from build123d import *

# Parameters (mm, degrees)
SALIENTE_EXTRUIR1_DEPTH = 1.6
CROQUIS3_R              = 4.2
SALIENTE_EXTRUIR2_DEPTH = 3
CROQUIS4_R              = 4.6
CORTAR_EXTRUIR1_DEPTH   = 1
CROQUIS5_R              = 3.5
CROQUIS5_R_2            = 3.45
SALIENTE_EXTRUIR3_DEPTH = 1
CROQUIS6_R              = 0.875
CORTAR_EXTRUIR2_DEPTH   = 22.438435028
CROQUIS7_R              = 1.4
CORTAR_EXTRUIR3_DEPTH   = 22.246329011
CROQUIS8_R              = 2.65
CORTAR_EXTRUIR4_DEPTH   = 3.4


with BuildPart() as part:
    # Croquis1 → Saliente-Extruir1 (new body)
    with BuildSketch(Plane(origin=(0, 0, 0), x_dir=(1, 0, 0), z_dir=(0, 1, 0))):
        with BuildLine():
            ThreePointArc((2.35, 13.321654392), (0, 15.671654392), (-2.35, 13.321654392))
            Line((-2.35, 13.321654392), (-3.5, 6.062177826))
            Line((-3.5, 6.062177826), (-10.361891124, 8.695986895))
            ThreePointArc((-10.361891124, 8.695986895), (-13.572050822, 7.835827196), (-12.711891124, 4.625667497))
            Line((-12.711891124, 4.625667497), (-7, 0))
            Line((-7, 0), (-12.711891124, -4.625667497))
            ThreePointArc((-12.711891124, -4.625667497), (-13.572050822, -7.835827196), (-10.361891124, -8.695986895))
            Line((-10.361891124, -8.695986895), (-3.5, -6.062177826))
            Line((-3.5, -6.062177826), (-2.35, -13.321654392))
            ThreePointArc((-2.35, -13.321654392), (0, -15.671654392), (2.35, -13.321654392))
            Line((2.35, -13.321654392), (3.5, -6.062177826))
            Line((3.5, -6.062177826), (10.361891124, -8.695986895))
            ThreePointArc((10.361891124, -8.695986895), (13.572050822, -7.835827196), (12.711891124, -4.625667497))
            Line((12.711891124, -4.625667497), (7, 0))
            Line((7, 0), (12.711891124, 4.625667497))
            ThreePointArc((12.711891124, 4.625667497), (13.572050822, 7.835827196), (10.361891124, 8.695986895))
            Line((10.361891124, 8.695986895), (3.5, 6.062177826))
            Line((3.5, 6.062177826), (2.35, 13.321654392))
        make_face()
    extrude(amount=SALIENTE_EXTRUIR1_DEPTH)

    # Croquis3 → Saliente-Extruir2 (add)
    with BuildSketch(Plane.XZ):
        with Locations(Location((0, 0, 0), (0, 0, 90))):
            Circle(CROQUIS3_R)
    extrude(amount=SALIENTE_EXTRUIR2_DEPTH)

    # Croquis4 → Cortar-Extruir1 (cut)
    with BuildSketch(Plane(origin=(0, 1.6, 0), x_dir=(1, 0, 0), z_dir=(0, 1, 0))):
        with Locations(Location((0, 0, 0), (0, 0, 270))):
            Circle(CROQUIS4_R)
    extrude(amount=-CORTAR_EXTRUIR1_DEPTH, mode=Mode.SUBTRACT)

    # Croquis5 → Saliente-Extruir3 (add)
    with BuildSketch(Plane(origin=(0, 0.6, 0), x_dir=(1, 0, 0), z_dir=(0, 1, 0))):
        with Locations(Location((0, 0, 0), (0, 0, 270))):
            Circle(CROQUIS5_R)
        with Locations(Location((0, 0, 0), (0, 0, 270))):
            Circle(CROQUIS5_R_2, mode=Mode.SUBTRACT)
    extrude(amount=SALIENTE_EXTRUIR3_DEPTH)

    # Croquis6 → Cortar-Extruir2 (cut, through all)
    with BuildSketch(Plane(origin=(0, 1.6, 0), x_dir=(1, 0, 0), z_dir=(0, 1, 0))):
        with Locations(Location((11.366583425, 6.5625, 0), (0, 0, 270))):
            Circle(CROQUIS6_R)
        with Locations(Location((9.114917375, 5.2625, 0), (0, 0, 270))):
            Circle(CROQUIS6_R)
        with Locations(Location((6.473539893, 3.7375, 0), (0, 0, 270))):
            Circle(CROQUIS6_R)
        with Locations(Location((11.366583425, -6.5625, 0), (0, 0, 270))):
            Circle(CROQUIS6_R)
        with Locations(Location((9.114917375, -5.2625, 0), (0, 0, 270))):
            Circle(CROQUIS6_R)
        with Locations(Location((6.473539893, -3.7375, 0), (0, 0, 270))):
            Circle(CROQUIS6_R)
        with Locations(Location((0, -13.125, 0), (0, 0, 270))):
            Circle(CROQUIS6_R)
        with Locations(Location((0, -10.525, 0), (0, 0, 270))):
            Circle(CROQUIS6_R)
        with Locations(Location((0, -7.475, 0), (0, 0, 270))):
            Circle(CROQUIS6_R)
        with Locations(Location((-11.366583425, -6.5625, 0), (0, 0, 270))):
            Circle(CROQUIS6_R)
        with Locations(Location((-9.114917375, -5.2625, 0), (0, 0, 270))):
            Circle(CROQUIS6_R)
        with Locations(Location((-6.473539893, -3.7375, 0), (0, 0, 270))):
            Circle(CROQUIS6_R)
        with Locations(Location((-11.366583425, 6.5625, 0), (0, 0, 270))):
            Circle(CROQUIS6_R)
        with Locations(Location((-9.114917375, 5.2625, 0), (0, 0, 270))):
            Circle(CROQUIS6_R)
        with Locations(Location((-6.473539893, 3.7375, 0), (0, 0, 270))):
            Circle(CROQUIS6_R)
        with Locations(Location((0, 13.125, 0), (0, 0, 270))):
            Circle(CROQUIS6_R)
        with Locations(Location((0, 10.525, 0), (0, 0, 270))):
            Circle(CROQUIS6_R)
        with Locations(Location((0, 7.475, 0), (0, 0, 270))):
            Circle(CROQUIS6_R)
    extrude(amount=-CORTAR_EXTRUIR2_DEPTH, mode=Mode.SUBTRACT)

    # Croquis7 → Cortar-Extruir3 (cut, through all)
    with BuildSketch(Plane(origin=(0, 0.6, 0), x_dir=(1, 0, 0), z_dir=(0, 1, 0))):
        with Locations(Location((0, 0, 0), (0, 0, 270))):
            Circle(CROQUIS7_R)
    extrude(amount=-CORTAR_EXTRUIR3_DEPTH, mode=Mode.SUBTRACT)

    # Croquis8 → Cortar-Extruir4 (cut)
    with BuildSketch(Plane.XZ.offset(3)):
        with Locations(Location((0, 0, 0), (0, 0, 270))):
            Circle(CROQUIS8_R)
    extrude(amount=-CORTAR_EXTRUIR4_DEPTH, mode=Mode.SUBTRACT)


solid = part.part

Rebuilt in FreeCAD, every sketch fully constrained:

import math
import FreeCAD as App
import Part
import Sketcher

V = App.Vector

doc = App.newDocument("Part")
params = doc.addObject("Spreadsheet::Sheet", "Params")
for row, (alias, value) in enumerate([
    ("sketch1_radius", "2.35 mm"),
    ("sketch1_length", "7.35 mm"),
    ("pad1_length", "1.6 mm"),
    ("sketch2_diameter", "8.4 mm"),
    ("pad2_length", "3 mm"),
    ("sketch3_diameter", "9.2 mm"),
    ("pocket1_length", "1 mm"),
    ("sketch4_diameter", "7 mm"),
    ("sketch4_diameter2", "6.9 mm"),
    ("pad3_length", "1 mm"),
    ("sketch5_diameter", "1.75 mm"),
    ("sketch6_diameter", "2.8 mm"),
    ("sketch7_diameter", "5.3 mm"),
    ("pocket4_length", "3.4 mm"),
], start=1):
    params.set(f"A{row}", alias)
    params.set(f"B{row}", "=" + value)
    params.setAlias(f"B{row}", alias)

body = doc.addObject("PartDesign::Body", "Body")

sketch1 = body.newObject("Sketcher::SketchObject", "Sketch")
sketch1.AttachmentSupport = (doc.getObject("XZ_Plane"), [""])
sketch1.MapMode = "FlatFace"
sketch1.addGeometry([
    Part.ArcOfCircle(Part.Circle(V(0, -13.321654, 0), V(0, 0, 1), 2.35), math.radians(180), math.radians(360)),
    Part.LineSegment(V(-2.35, -13.321654, 0), V(-3.5, -6.062178, 0)),
    Part.LineSegment(V(-3.5, -6.062178, 0), V(-10.361891, -8.695987, 0)),
    Part.ArcOfCircle(Part.Circle(V(-11.536891, -6.660827, 0), V(0, 0, 1), 2.35), math.radians(120), math.radians(300)),
    Part.LineSegment(V(-12.711891, -4.625667, 0), V(-7, 0, 0)),
    Part.LineSegment(V(-7, 0, 0), V(-12.711891, 4.625667, 0)),
    Part.ArcOfCircle(Part.Circle(V(-11.536891, 6.660827, 0), V(0, 0, 1), 2.35), math.radians(60), math.radians(240)),
    Part.LineSegment(V(-10.361891, 8.695987, 0), V(-3.5, 6.062178, 0)),
    Part.LineSegment(V(-3.5, 6.062178, 0), V(-2.35, 13.321654, 0)),
    Part.ArcOfCircle(Part.Circle(V(0, 13.321654, 0), V(0, 0, 1), 2.35), math.radians(0), math.radians(180)),
    Part.LineSegment(V(2.35, 13.321654, 0), V(3.5, 6.062178, 0)),
    Part.LineSegment(V(3.5, 6.062178, 0), V(10.361891, 8.695987, 0)),
    Part.ArcOfCircle(Part.Circle(V(11.536891, 6.660827, 0), V(0, 0, 1), 2.35), math.radians(-60), math.radians(120)),
    Part.LineSegment(V(12.711891, 4.625667, 0), V(7, 0, 0)),
    Part.LineSegment(V(7, 0, 0), V(12.711891, -4.625667, 0)),
    Part.ArcOfCircle(Part.Circle(V(11.536891, -6.660827, 0), V(0, 0, 1), 2.35), math.radians(-120), math.radians(60)),
    Part.LineSegment(V(10.361891, -8.695987, 0), V(3.5, -6.062178, 0)),
    Part.LineSegment(V(3.5, -6.062178, 0), V(2.35, -13.321654, 0)),
], False)
sketch1.addConstraint([
    Sketcher.Constraint("Coincident", 0, 1, 1, 1),
    Sketcher.Constraint("Coincident", 1, 2, 2, 1),
    Sketcher.Constraint("Coincident", 2, 2, 3, 2),
    Sketcher.Constraint("Coincident", 3, 1, 4, 1),
    Sketcher.Constraint("Coincident", 4, 2, 5, 1),
    Sketcher.Constraint("Coincident", 5, 2, 6, 2),
    Sketcher.Constraint("Coincident", 6, 1, 7, 1),
    Sketcher.Constraint("Coincident", 7, 2, 8, 1),
    Sketcher.Constraint("Coincident", 8, 2, 9, 2),
    Sketcher.Constraint("Coincident", 9, 1, 10, 1),
    Sketcher.Constraint("Coincident", 10, 2, 11, 1),
    Sketcher.Constraint("Coincident", 11, 2, 12, 2),
    Sketcher.Constraint("Coincident", 12, 1, 13, 1),
    Sketcher.Constraint("Coincident", 13, 2, 14, 1),
    Sketcher.Constraint("Coincident", 14, 2, 15, 2),
    Sketcher.Constraint("Coincident", 15, 1, 16, 1),
    Sketcher.Constraint("Coincident", 16, 2, 17, 1),
    Sketcher.Constraint("Coincident", 17, 2, 0, 2),
    Sketcher.Constraint("Equal", 0, 3),
    Sketcher.Constraint("Equal", 3, 6),
    Sketcher.Constraint("Equal", 6, 9),
    Sketcher.Constraint("Equal", 9, 12),
    Sketcher.Constraint("Equal", 12, 15),
    Sketcher.Constraint("Symmetric", 0, 3, 9, 3, -1, 1),
    Sketcher.Constraint("Symmetric", 3, 3, 12, 3, -1, 1),
    Sketcher.Constraint("Symmetric", 6, 3, 15, 3, -1, 1),
    Sketcher.Constraint("Symmetric", 1, 2, 10, 2, -1, 1),
    Sketcher.Constraint("Symmetric", 4, 2, 13, 2, -1, 1),
    Sketcher.Constraint("Symmetric", 7, 2, 16, 2, -1, 1),
    Sketcher.Constraint("Symmetric", 6, 3, 12, 3, -2),
    Sketcher.Constraint("Symmetric", 8, 2, 9, 1, -2),
    Sketcher.Constraint("Symmetric", 7, 2, 10, 2, -2),
    Sketcher.Constraint("PointOnObject", 4, 2, -1),
    Sketcher.Constraint("Parallel", 1, 10),
    Sketcher.Constraint("Parallel", 2, 11),
    Sketcher.Constraint("Parallel", 4, 13),
    Sketcher.Constraint("Parallel", 5, 14),
    Sketcher.Constraint("Parallel", 7, 16),
    Sketcher.Constraint("Parallel", 8, 17),
    Sketcher.Constraint("Horizontal", 9, 3, 8, 2),
    Sketcher.Constraint("Horizontal", 6, 1, 11, 2),
    Sketcher.Constraint("Horizontal", 5, 2, 12, 1),
    Sketcher.Constraint("Equal", 1, 2),
    Sketcher.Constraint("Equal", 2, 4),
    Sketcher.Constraint("Radius", 0, 2.35),
    Sketcher.Constraint("DistanceX", 4, 2, -1, 1, 7.0),
    Sketcher.Constraint("DistanceX", 7, 2, 10, 2, 7.0),
    Sketcher.Constraint("Distance", 1, 7.35),
    Sketcher.Constraint("DistanceX", 3, 1, 2, 2, 2.35),
    Sketcher.Constraint("DistanceX", 3, 3, 2, 2, 1.175),
    Sketcher.Constraint("DistanceX", 3, 3, -1, 1, 11.536891),
])
sketch1.setExpression("Constraints[44]", "Params.sketch1_radius")
sketch1.setExpression("Constraints[47]", "Params.sketch1_length")
pad1 = body.newObject("PartDesign::Pad", "Pad")
pad1.Profile = sketch1
pad1.setExpression("Length", "Params.pad1_length")
pad1.Reversed = True

sketch2 = body.newObject("Sketcher::SketchObject", "Sketch001")
sketch2.AttachmentSupport = (doc.getObject("XZ_Plane"), [""])
sketch2.MapMode = "FlatFace"
sketch2.addGeometry(Part.Circle(V(0, 0, 0), V(0, 0, 1), 4.2), False)
sketch2.addConstraint([
    Sketcher.Constraint("Coincident", 0, 3, -1, 1),
    Sketcher.Constraint("Diameter", 0, 8.4),
])
sketch2.setExpression("Constraints[1]", "Params.sketch2_diameter")
pad2 = body.newObject("PartDesign::Pad", "Pad001")
pad2.Profile = sketch2
pad2.setExpression("Length", "Params.pad2_length")

sketch3 = body.newObject("Sketcher::SketchObject", "Sketch002")
sketch3.AttachmentSupport = (doc.getObject("XZ_Plane"), [""])
sketch3.MapMode = "FlatFace"
sketch3.AttachmentOffset = App.Placement(V(0, 0, -1.6), App.Rotation())
sketch3.addGeometry(Part.Circle(V(0, 0, 0), V(0, 0, 1), 4.6), False)
sketch3.addConstraint([
    Sketcher.Constraint("Coincident", 0, 3, -1, 1),
    Sketcher.Constraint("Diameter", 0, 9.2),
])
sketch3.setExpression("Constraints[1]", "Params.sketch3_diameter")
pocket1 = body.newObject("PartDesign::Pocket", "Pocket")
pocket1.Profile = sketch3
pocket1.setExpression("Length", "Params.pocket1_length")
pocket1.Reversed = True

sketch4 = body.newObject("Sketcher::SketchObject", "Sketch003")
sketch4.AttachmentSupport = (doc.getObject("XZ_Plane"), [""])
sketch4.MapMode = "FlatFace"
sketch4.AttachmentOffset = App.Placement(V(0, 0, -0.6), App.Rotation())
sketch4.addGeometry([
    Part.Circle(V(0, 0, 0), V(0, 0, 1), 3.5),
    Part.Circle(V(0, 0, 0), V(0, 0, 1), 3.45),
], False)
sketch4.addConstraint([
    Sketcher.Constraint("Coincident", 0, 3, -1, 1),
    Sketcher.Constraint("Coincident", 1, 3, -1, 1),
    Sketcher.Constraint("Diameter", 0, 7.0),
    Sketcher.Constraint("Diameter", 1, 6.9),
])
sketch4.setExpression("Constraints[2]", "Params.sketch4_diameter")
sketch4.setExpression("Constraints[3]", "Params.sketch4_diameter2")
pad3 = body.newObject("PartDesign::Pad", "Pad002")
pad3.Profile = sketch4
pad3.setExpression("Length", "Params.pad3_length")
pad3.Reversed = True

sketch5 = body.newObject("Sketcher::SketchObject", "Sketch004")
sketch5.AttachmentSupport = (doc.getObject("XZ_Plane"), [""])
sketch5.MapMode = "FlatFace"
sketch5.AttachmentOffset = App.Placement(V(0, 0, -1.6), App.Rotation())
sketch5.addGeometry([
    Part.Circle(V(11.366583, -6.5625, 0), V(0, 0, 1), 0.875),
    Part.Circle(V(9.114917, -5.2625, 0), V(0, 0, 1), 0.875),
    Part.Circle(V(6.47354, -3.7375, 0), V(0, 0, 1), 0.875),
    Part.Circle(V(11.366583, 6.5625, 0), V(0, 0, 1), 0.875),
    Part.Circle(V(9.114917, 5.2625, 0), V(0, 0, 1), 0.875),
    Part.Circle(V(6.47354, 3.7375, 0), V(0, 0, 1), 0.875),
    Part.Circle(V(0, 13.125, 0), V(0, 0, 1), 0.875),
    Part.Circle(V(0, 10.525, 0), V(0, 0, 1), 0.875),
    Part.Circle(V(0, 7.475, 0), V(0, 0, 1), 0.875),
    Part.Circle(V(-11.366583, 6.5625, 0), V(0, 0, 1), 0.875),
    Part.Circle(V(-9.114917, 5.2625, 0), V(0, 0, 1), 0.875),
    Part.Circle(V(-6.47354, 3.7375, 0), V(0, 0, 1), 0.875),
    Part.Circle(V(-11.366583, -6.5625, 0), V(0, 0, 1), 0.875),
    Part.Circle(V(-9.114917, -5.2625, 0), V(0, 0, 1), 0.875),
    Part.Circle(V(-6.47354, -3.7375, 0), V(0, 0, 1), 0.875),
    Part.Circle(V(0, -13.125, 0), V(0, 0, 1), 0.875),
    Part.Circle(V(0, -10.525, 0), V(0, 0, 1), 0.875),
    Part.Circle(V(0, -7.475, 0), V(0, 0, 1), 0.875),
], False)
sketch5.addConstraint([
    Sketcher.Constraint("Equal", 0, 1),
    Sketcher.Constraint("Equal", 1, 2),
    Sketcher.Constraint("Equal", 2, 3),
    Sketcher.Constraint("Equal", 3, 4),
    Sketcher.Constraint("Equal", 4, 5),
    Sketcher.Constraint("Equal", 5, 6),
    Sketcher.Constraint("Equal", 6, 7),
    Sketcher.Constraint("Equal", 7, 8),
    Sketcher.Constraint("Equal", 8, 9),
    Sketcher.Constraint("Equal", 9, 10),
    Sketcher.Constraint("Equal", 10, 11),
    Sketcher.Constraint("Equal", 11, 12),
    Sketcher.Constraint("Equal", 12, 13),
    Sketcher.Constraint("Equal", 13, 14),
    Sketcher.Constraint("Equal", 14, 15),
    Sketcher.Constraint("Equal", 15, 16),
    Sketcher.Constraint("Equal", 16, 17),
    Sketcher.Constraint("Symmetric", 0, 3, 9, 3, -1, 1),
    Sketcher.Constraint("Symmetric", 1, 3, 10, 3, -1, 1),
    Sketcher.Constraint("Symmetric", 2, 3, 11, 3, -1, 1),
    Sketcher.Constraint("Symmetric", 3, 3, 12, 3, -1, 1),
    Sketcher.Constraint("Symmetric", 4, 3, 13, 3, -1, 1),
    Sketcher.Constraint("Symmetric", 5, 3, 14, 3, -1, 1),
    Sketcher.Constraint("Symmetric", 6, 3, 15, 3, -1, 1),
    Sketcher.Constraint("Symmetric", 7, 3, 16, 3, -1, 1),
    Sketcher.Constraint("Symmetric", 8, 3, 17, 3, -1, 1),
    Sketcher.Constraint("Symmetric", 3, 3, 9, 3, -2),
    Sketcher.Constraint("Symmetric", 4, 3, 10, 3, -2),
    Sketcher.Constraint("Symmetric", 5, 3, 11, 3, -2),
    Sketcher.Constraint("PointOnObject", 6, 3, -2),
    Sketcher.Constraint("PointOnObject", 7, 3, -2),
    Sketcher.Constraint("PointOnObject", 8, 3, -2),
    Sketcher.Constraint("Diameter", 0, 1.75),
    Sketcher.Constraint("DistanceY", 2, 3, 4, 3, 9.0),
    Sketcher.Constraint("DistanceY", 0, 3, 1, 3, 1.3),
    Sketcher.Constraint("DistanceY", 7, 3, 6, 3, 2.6),
    Sketcher.Constraint("DistanceY", 8, 3, 7, 3, 3.05),
    Sketcher.Constraint("DistanceY", -1, 1, 6, 3, 13.125),
    Sketcher.Constraint("DistanceY", 1, 3, 2, 3, 1.525),
    Sketcher.Constraint("DistanceX", 9, 3, 4, 3, 20.481501),
    Sketcher.Constraint("DistanceX", -1, 1, 2, 3, 6.47354),
    Sketcher.Constraint("DistanceX", -1, 1, 0, 3, 11.366583),
])
sketch5.setExpression("Constraints[32]", "Params.sketch5_diameter")
pocket2 = body.newObject("PartDesign::Pocket", "Pocket001")
pocket2.Profile = sketch5
pocket2.Type = "ThroughAll"
pocket2.Reversed = True

sketch6 = body.newObject("Sketcher::SketchObject", "Sketch005")
sketch6.AttachmentSupport = (doc.getObject("XZ_Plane"), [""])
sketch6.MapMode = "FlatFace"
sketch6.AttachmentOffset = App.Placement(V(0, 0, -0.6), App.Rotation())
sketch6.addGeometry(Part.Circle(V(0, 0, 0), V(0, 0, 1), 1.4), False)
sketch6.addConstraint([
    Sketcher.Constraint("Coincident", 0, 3, -1, 1),
    Sketcher.Constraint("Diameter", 0, 2.8),
])
sketch6.setExpression("Constraints[1]", "Params.sketch6_diameter")
pocket3 = body.newObject("PartDesign::Pocket", "Pocket002")
pocket3.Profile = sketch6
pocket3.Type = "ThroughAll"
pocket3.Reversed = True

sketch7 = body.newObject("Sketcher::SketchObject", "Sketch006")
sketch7.AttachmentSupport = (doc.getObject("XZ_Plane"), [""])
sketch7.MapMode = "FlatFace"
sketch7.AttachmentOffset = App.Placement(V(0, 0, 3), App.Rotation())
sketch7.addGeometry(Part.Circle(V(0, 0, 0), V(0, 0, 1), 2.65), False)
sketch7.addConstraint([
    Sketcher.Constraint("Coincident", 0, 3, -1, 1),
    Sketcher.Constraint("Diameter", 0, 5.3),
])
sketch7.setExpression("Constraints[1]", "Params.sketch7_diameter")
pocket4 = body.newObject("PartDesign::Pocket", "Pocket003")
pocket4.Profile = sketch7
pocket4.setExpression("Length", "Params.pocket4_length")

doc.recompute()
